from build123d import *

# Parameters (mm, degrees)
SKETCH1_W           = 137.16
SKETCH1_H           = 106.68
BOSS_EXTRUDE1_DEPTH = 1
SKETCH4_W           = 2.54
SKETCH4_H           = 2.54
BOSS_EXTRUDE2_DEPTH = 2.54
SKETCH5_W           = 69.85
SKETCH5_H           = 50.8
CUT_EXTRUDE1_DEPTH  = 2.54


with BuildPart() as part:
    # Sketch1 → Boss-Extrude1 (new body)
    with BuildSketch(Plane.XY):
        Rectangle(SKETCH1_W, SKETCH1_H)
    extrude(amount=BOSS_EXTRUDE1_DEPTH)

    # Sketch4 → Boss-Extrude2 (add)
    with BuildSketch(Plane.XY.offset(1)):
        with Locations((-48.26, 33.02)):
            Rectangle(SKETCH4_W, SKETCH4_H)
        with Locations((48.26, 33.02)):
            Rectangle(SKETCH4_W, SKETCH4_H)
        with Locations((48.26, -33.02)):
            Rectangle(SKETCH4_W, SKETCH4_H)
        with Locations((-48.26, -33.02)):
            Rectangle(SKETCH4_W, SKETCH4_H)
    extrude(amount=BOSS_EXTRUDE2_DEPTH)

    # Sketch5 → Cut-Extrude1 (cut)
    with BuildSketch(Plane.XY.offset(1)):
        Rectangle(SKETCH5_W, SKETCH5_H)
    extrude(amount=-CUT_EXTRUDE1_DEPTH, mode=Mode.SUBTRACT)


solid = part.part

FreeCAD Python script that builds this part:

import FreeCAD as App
import Part
import Sketcher

V = App.Vector
Q = App.Units.Quantity


def add_polygon(sketch, points):
    """Adds a closed chain of lines whose ends are joined by coincident constraints."""
    first, n = sketch.GeometryCount, len(points)
    for a, b in zip(points, points[1:] + points[:1]):
        sketch.addGeometry(Part.LineSegment(App.Vector(*a, 0), App.Vector(*b, 0)), False)
    for i in range(n):
        sketch.addConstraint(Sketcher.Constraint("Coincident", first + i, 2, first + (i + 1) % n, 1))

doc = App.newDocument("Part")
body = doc.addObject("PartDesign::Body", "Body")

sketch1 = body.newObject("Sketcher::SketchObject", "Sketch")
sketch1.AttachmentSupport = (doc.getObject("XY_Plane"), [""])
sketch1.MapMode = "FlatFace"
add_polygon(sketch1, [(-69, 53), (-69, -53), (69, -53), (69, 53)])
sketch1.addConstraint(Sketcher.Constraint("Vertical", 0))
sketch1.addConstraint(Sketcher.Constraint("Horizontal", 1))
sketch1.addConstraint(Sketcher.Constraint("Vertical", 2))
sketch1.addConstraint(Sketcher.Constraint("Horizontal", 3))
sketch1.addConstraint(Sketcher.Constraint("Symmetric", 0, 2, 2, 2, -1, 1))
sketch1.addConstraint(Sketcher.Constraint("DistanceX", 1, 1, 1, 2, Q("5.4 in")))
sketch1.addConstraint(Sketcher.Constraint("DistanceY", 0, 2, 0, 1, Q("4.2 in")))
pad1 = body.newObject("PartDesign::Pad", "Pad")
pad1.Profile = sketch1
pad1.Length = 1

sketch2 = body.newObject("Sketcher::SketchObject", "Sketch001")
sketch2.AttachmentSupport = (doc.getObject("XY_Plane"), [""])
sketch2.MapMode = "FlatFace"
sketch2.AttachmentOffset = App.Placement(V(0, 0, 1), App.Rotation())
add_polygon(sketch2, [(-49.5, 34.3), (-49.5, 31.8), (-47, 31.8), (-47, 34.3)])
add_polygon(sketch2, [(47, 34.3), (47, 31.8), (49.5, 31.8), (49.5, 34.3)])
add_polygon(sketch2, [(47, -31.8), (47, -34.3), (49.5, -34.3), (49.5, -31.8)])
add_polygon(sketch2, [(-49.5, -31.8), (-49.5, -34.3), (-47, -34.3), (-47, -31.8)])
sketch2.addConstraint(Sketcher.Constraint("Vertical", 0))
sketch2.addConstraint(Sketcher.Constraint("Horizontal", 1))
sketch2.addConstraint(Sketcher.Constraint("Vertical", 2))
sketch2.addConstraint(Sketcher.Constraint("Horizontal", 3))
sketch2.addConstraint(Sketcher.Constraint("Vertical", 4))
sketch2.addConstraint(Sketcher.Constraint("Horizontal", 5))
sketch2.addConstraint(Sketcher.Constraint("Vertical", 6))
sketch2.addConstraint(Sketcher.Constraint("Horizontal", 7))
sketch2.addConstraint(Sketcher.Constraint("Vertical", 8))
sketch2.addConstraint(Sketcher.Constraint("Horizontal", 9))
sketch2.addConstraint(Sketcher.Constraint("Vertical", 10))
sketch2.addConstraint(Sketcher.Constraint("Horizontal", 11))
sketch2.addConstraint(Sketcher.Constraint("Vertical", 12))
sketch2.addConstraint(Sketcher.Constraint("Horizontal", 13))
sketch2.addConstraint(Sketcher.Constraint("Vertical", 14))
sketch2.addConstraint(Sketcher.Constraint("Horizontal", 15))
sketch2.addConstraint(Sketcher.Constraint("Symmetric", 2, 2, 8, 2, -1, 1))
sketch2.addConstraint(Sketcher.Constraint("Symmetric", 0, 2, 10, 2, -1, 1))
sketch2.addConstraint(Sketcher.Constraint("Symmetric", 6, 2, 12, 2, -1, 1))
sketch2.addConstraint(Sketcher.Constraint("Symmetric", 4, 2, 14, 2, -1, 1))
sketch2.addConstraint(Sketcher.Constraint("Symmetric", 1, 2, 4, 2, -2))
sketch2.addConstraint(Sketcher.Constraint("Symmetric", 3, 2, 6, 2, -2))
sketch2.addConstraint(Sketcher.Constraint("Equal", 15, 0))
sketch2.addConstraint(Sketcher.Constraint("DistanceX", 1, 1, 1, 2, Q("0.1 in")))
sketch2.addConstraint(Sketcher.Constraint("DistanceX", 1, 2, 4, 2, Q("3.7 in")))
sketch2.addConstraint(Sketcher.Constraint("DistanceY", 8, 2, 4, 2, Q("2.6 in")))
pad2 = body.newObject("PartDesign::Pad", "Pad001")
pad2.Profile = sketch2
pad2.Length = Q("0.1 in")

sketch3 = body.newObject("Sketcher::SketchObject", "Sketch002")
sketch3.AttachmentSupport = (doc.getObject("XY_Plane"), [""])
sketch3.MapMode = "FlatFace"
sketch3.AttachmentOffset = App.Placement(V(0, 0, 1), App.Rotation())
add_polygon(sketch3, [(-35, 25), (-35, -25), (35, -25), (35, 25)])
sketch3.addConstraint(Sketcher.Constraint("Vertical", 0))
sketch3.addConstraint(Sketcher.Constraint("Horizontal", 1))
sketch3.addConstraint(Sketcher.Constraint("Vertical", 2))
sketch3.addConstraint(Sketcher.Constraint("Horizontal", 3))
sketch3.addConstraint(Sketcher.Constraint("Symmetric", 0, 2, 2, 2, -1, 1))
sketch3.addConstraint(Sketcher.Constraint("DistanceY", 0, 2, 0, 1, Q("2 in")))
sketch3.addConstraint(Sketcher.Constraint("DistanceX", 1, 1, 1, 2, Q("2.75 in")))
pocket1 = body.newObject("PartDesign::Pocket", "Pocket")
pocket1.Profile = sketch3
pocket1.Length = Q("0.1 in")

doc.recompute()
